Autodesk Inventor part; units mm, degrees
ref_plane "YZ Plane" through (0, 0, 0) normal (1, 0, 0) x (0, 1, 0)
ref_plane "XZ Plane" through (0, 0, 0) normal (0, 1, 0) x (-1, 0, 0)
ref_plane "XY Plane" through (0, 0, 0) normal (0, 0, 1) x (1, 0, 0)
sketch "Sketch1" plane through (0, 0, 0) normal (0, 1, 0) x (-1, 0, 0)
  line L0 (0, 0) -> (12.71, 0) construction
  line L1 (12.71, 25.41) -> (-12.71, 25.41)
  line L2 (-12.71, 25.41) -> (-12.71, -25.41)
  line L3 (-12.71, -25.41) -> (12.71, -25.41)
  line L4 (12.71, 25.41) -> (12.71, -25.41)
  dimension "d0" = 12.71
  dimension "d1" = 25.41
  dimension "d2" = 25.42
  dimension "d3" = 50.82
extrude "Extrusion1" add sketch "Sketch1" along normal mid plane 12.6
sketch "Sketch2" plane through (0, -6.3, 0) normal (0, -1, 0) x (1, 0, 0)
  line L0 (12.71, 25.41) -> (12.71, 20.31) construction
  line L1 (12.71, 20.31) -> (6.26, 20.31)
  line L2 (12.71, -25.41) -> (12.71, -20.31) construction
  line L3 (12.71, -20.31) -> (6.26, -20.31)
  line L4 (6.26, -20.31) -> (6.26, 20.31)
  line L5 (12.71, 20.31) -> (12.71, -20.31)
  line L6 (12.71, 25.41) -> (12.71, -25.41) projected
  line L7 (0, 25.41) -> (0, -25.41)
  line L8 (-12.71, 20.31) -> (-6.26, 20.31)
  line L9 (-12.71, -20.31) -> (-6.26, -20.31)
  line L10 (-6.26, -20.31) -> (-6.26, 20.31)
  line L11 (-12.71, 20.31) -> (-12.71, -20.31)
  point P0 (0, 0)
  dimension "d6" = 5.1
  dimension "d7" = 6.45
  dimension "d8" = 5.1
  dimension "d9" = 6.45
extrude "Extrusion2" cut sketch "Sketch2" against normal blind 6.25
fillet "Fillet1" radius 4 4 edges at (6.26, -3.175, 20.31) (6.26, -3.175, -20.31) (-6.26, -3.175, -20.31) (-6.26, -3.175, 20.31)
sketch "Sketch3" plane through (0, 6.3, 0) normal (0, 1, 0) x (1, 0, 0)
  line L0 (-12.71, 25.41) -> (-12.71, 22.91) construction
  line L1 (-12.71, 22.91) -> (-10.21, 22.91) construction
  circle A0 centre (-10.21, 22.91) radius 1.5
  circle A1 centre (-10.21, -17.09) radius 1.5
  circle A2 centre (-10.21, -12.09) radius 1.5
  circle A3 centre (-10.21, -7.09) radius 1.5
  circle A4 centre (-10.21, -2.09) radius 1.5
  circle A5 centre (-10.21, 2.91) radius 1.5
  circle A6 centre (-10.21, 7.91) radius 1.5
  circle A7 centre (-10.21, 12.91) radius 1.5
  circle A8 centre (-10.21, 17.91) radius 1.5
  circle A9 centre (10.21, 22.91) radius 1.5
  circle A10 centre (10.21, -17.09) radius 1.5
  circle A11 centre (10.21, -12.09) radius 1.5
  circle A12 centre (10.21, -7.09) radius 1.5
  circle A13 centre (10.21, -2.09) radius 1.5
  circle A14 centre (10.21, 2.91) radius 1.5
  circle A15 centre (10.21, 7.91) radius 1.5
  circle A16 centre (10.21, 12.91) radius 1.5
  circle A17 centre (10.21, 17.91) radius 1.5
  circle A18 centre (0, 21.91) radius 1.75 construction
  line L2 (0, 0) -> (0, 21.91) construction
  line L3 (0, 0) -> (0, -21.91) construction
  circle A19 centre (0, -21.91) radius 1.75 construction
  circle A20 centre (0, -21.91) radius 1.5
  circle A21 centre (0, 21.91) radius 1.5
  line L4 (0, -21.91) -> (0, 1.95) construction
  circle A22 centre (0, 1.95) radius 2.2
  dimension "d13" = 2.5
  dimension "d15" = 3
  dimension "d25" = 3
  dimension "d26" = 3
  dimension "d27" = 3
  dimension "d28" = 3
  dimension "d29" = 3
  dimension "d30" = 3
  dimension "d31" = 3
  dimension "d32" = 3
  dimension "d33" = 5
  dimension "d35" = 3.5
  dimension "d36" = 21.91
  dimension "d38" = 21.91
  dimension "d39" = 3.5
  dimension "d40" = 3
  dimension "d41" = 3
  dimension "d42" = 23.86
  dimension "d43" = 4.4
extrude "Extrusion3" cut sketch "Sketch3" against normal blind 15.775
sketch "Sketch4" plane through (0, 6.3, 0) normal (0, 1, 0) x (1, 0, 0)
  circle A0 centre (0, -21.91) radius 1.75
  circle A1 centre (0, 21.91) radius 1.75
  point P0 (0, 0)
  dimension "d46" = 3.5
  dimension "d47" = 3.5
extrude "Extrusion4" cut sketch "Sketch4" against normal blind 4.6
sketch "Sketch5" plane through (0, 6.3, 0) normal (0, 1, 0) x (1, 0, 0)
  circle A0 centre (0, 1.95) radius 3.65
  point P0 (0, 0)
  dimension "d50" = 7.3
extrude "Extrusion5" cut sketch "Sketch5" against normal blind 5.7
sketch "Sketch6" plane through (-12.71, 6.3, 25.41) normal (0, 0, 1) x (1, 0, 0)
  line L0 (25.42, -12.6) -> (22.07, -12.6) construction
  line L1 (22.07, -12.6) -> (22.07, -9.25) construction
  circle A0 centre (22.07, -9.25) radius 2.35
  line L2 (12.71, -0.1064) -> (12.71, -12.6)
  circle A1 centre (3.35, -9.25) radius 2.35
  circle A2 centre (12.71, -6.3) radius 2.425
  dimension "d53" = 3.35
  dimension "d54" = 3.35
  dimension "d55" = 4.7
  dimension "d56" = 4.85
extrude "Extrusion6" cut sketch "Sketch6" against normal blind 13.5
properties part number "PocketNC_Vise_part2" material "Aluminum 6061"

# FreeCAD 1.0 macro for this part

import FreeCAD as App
import Part
import Sketcher


def edges_at(feature, points):
    """Names of the edges that pass closest to the given points."""
    edges = feature.Shape.Edges
    near = lambda p: min(range(len(edges)), key=lambda i: edges[i].distToShape(Part.Vertex(*p))[0])
    return sorted({f"Edge{near(p) + 1}" for p in points})


def add_polygon(sketch, points):
    """Adds a closed chain of lines whose ends are joined by coincident constraints."""
    first, n = sketch.GeometryCount, len(points)
    for a, b in zip(points, points[1:] + points[:1]):
        sketch.addGeometry(Part.LineSegment(App.Vector(*a, 0), App.Vector(*b, 0)), False)
    for i in range(n):
        sketch.addConstraint(Sketcher.Constraint("Coincident", first + i, 2, first + (i + 1) % n, 1))

doc = App.newDocument("Part")
params = doc.addObject("Spreadsheet::Sheet", "Params")
for row, (alias, value) in enumerate([
    ("sketch1_width", "25.42 mm"),
    ("sketch1_height", "50.82 mm"),
    ("pad1_length", "12.6 mm"),
    ("sketch2_width", "6.45 mm"),
    ("sketch2_height", "40.62 mm"),
    ("pocket1_length", "6.25 mm"),
    ("fillet_radius", "4 mm"),
    ("sketch3_diameter", "3 mm"),
    ("sketch3_diameter2", "4.4 mm"),
    ("pocket2_length", "15.775 mm"),
    ("sketch4_diameter", "3.5 mm"),
    ("pocket3_length", "4.6 mm"),
    ("sketch5_diameter", "7.3 mm"),
    ("pocket4_length", "5.7 mm"),
    ("sketch6_diameter", "4.7 mm"),
    ("sketch6_diameter2", "4.85 mm"),
    ("pocket5_length", "13.5 mm"),
], start=1):
    params.set(f"A{row}", alias)
    params.set(f"B{row}", "=" + value)
    params.setAlias(f"B{row}", alias)

body = doc.addObject("PartDesign::Body", "Body")

sketch1 = body.newObject("Sketcher::SketchObject", "Sketch")
sketch1.AttachmentSupport = (doc.getObject("XZ_Plane"), [""])
sketch1.MapMode = "FlatFace"
add_polygon(sketch1, [(-12.71, -25.41), (-12.71, 25.41), (12.71, 25.41), (12.71, -25.41)])
sketch1.addConstraint(Sketcher.Constraint("Vertical", 0))
sketch1.addConstraint(Sketcher.Constraint("Horizontal", 1))
sketch1.addConstraint(Sketcher.Constraint("Vertical", 2))
sketch1.addConstraint(Sketcher.Constraint("Horizontal", 3))
sketch1.addConstraint(Sketcher.Constraint("Symmetric", 0, 2, 2, 2, -1, 1))
sketch1.addConstraint(Sketcher.Constraint("DistanceX", 1, 1, 1, 2, 25.42))
sketch1.addConstraint(Sketcher.Constraint("DistanceY", 0, 1, 0, 2, 50.82))
sketch1.setExpression("Constraints[9]", "Params.sketch1_width")
sketch1.setExpression("Constraints[10]", "Params.sketch1_height")
pad1 = body.newObject("PartDesign::Pad", "Pad")
pad1.Profile = sketch1
pad1.setExpression("Length", "Params.pad1_length")
pad1.Midplane = True

sketch2 = body.newObject("Sketcher::SketchObject", "Sketch001")
sketch2.AttachmentSupport = (doc.getObject("XZ_Plane"), [""])
sketch2.MapMode = "FlatFace"
sketch2.AttachmentOffset = App.Placement(App.Vector(0, 0, 6.3), App.Rotation())
add_polygon(sketch2, [(12.71, -20.31), (12.71, 20.31), (6.26, 20.31), (6.26, -20.31)])
add_polygon(sketch2, [(-6.26, 20.31), (-12.71, 20.31), (-12.71, -20.31), (-6.26, -20.31)])
sketch2.addConstraint(Sketcher.Constraint("Vertical", 0))
sketch2.addConstraint(Sketcher.Constraint("Horizontal", 1))
sketch2.addConstraint(Sketcher.Constraint("Vertical", 2))
sketch2.addConstraint(Sketcher.Constraint("Horizontal", 3))
sketch2.addConstraint(Sketcher.Constraint("Horizontal", 4))
sketch2.addConstraint(Sketcher.Constraint("Vertical", 5))
sketch2.addConstraint(Sketcher.Constraint("Horizontal", 6))
sketch2.addConstraint(Sketcher.Constraint("Vertical", 7))
sketch2.addConstraint(Sketcher.Constraint("Symmetric", 3, 2, 4, 2, -1, 1))
sketch2.addConstraint(Sketcher.Constraint("Symmetric", 1, 2, 6, 2, -1, 1))
sketch2.addConstraint(Sketcher.Constraint("Horizontal", 1, 2, 4, 2))
sketch2.addConstraint(Sketcher.Constraint("DistanceX", 1, 2, 1, 1, 6.45))
sketch2.addConstraint(Sketcher.Constraint("DistanceY", 0, 1, 0, 2, 40.62))
sketch2.addConstraint(Sketcher.Constraint("DistanceX", -1, 1, 0, 2, 12.71))
sketch2.setExpression("Constraints[19]", "Params.sketch2_width")
sketch2.setExpression("Constraints[20]", "Params.sketch2_height")
pocket1 = body.newObject("PartDesign::Pocket", "Pocket")
pocket1.Profile = sketch2
pocket1.setExpression("Length", "Params.pocket1_length")
doc.recompute()

fillet = body.newObject("PartDesign::Fillet", "Fillet")
fillet.Base = (pocket1, edges_at(pocket1, [
    (6.26, -3.175, 20.31),
    (6.26, -3.175, -20.31),
    (-6.26, -3.175, -20.31),
    (-6.26, -3.175, 20.31),
]))
fillet.setExpression("Radius", "Params.fillet_radius")

sketch3 = body.newObject("Sketcher::SketchObject", "Sketch002")
sketch3.AttachmentSupport = (doc.getObject("XZ_Plane"), [""])
sketch3.MapMode = "FlatFace"
sketch3.AttachmentOffset = App.Placement(App.Vector(0, 0, -6.3), App.Rotation())
sketch3.addGeometry(Part.Circle(App.Vector(-10.21, -22.91, 0), App.Vector(0, 0, 1), 1.5), False)
sketch3.addGeometry(Part.Circle(App.Vector(-10.21, 17.09, 0), App.Vector(0, 0, 1), 1.5), False)
sketch3.addGeometry(Part.Circle(App.Vector(-10.21, 12.09, 0), App.Vector(0, 0, 1), 1.5), False)
sketch3.addGeometry(Part.Circle(App.Vector(-10.21, 7.09, 0), App.Vector(0, 0, 1), 1.5), False)
sketch3.addGeometry(Part.Circle(App.Vector(-10.21, 2.09, 0), App.Vector(0, 0, 1), 1.5), False)
sketch3.addGeometry(Part.Circle(App.Vector(-10.21, -2.91, 0), App.Vector(0, 0, 1), 1.5), False)
sketch3.addGeometry(Part.Circle(App.Vector(-10.21, -7.91, 0), App.Vector(0, 0, 1), 1.5), False)
sketch3.addGeometry(Part.Circle(App.Vector(-10.21, -12.91, 0), App.Vector(0, 0, 1), 1.5), False)
sketch3.addGeometry(Part.Circle(App.Vector(-10.21, -17.91, 0), App.Vector(0, 0, 1), 1.5), False)
sketch3.addGeometry(Part.Circle(App.Vector(10.21, -22.91, 0), App.Vector(0, 0, 1), 1.5), False)
sketch3.addGeometry(Part.Circle(App.Vector(10.21, 17.09, 0), App.Vector(0, 0, 1), 1.5), False)
sketch3.addGeometry(Part.Circle(App.Vector(10.21, 12.09, 0), App.Vector(0, 0, 1), 1.5), False)
sketch3.addGeometry(Part.Circle(App.Vector(10.21, 7.09, 0), App.Vector(0, 0, 1), 1.5), False)
sketch3.addGeometry(Part.Circle(App.Vector(10.21, 2.09, 0), App.Vector(0, 0, 1), 1.5), False)
sketch3.addGeometry(Part.Circle(App.Vector(10.21, -2.91, 0), App.Vector(0, 0, 1), 1.5), False)
sketch3.addGeometry(Part.Circle(App.Vector(10.21, -7.91, 0), App.Vector(0, 0, 1), 1.5), False)
sketch3.addGeometry(Part.Circle(App.Vector(10.21, -12.91, 0), App.Vector(0, 0, 1), 1.5), False)
sketch3.addGeometry(Part.Circle(App.Vector(10.21, -17.91, 0), App.Vector(0, 0, 1), 1.5), False)
sketch3.addGeometry(Part.Circle(App.Vector(0, 21.91, 0), App.Vector(0, 0, 1), 1.5), False)
sketch3.addGeometry(Part.Circle(App.Vector(0, -21.91, 0), App.Vector(0, 0, 1), 1.5), False)
sketch3.addGeometry(Part.Circle(App.Vector(0, -1.95, 0), App.Vector(0, 0, 1), 2.2), False)
sketch3.addConstraint(Sketcher.Constraint("Equal", 0, 1))
sketch3.addConstraint(Sketcher.Constraint("Equal", 1, 2))
sketch3.addConstraint(Sketcher.Constraint("Equal", 2, 3))
sketch3.addConstraint(Sketcher.Constraint("Equal", 3, 4))
sketch3.addConstraint(Sketcher.Constraint("Equal", 4, 5))
sketch3.addConstraint(Sketcher.Constraint("Equal", 5, 6))
sketch3.addConstraint(Sketcher.Constraint("Equal", 6, 7))
sketch3.addConstraint(Sketcher.Constraint("Equal", 7, 8))
sketch3.addConstraint(Sketcher.Constraint("Equal", 8, 9))
sketch3.addConstraint(Sketcher.Constraint("Equal", 9, 10))
sketch3.addConstraint(Sketcher.Constraint("Equal", 10, 11))
sketch3.addConstraint(Sketcher.Constraint("Equal", 11, 12))
sketch3.addConstraint(Sketcher.Constraint("Equal", 12, 13))
sketch3.addConstraint(Sketcher.Constraint("Equal", 13, 14))
sketch3.addConstraint(Sketcher.Constraint("Equal", 14, 15))
sketch3.addConstraint(Sketcher.Constraint("Equal", 15, 16))
sketch3.addConstraint(Sketcher.Constraint("Equal", 16, 17))
sketch3.addConstraint(Sketcher.Constraint("Equal", 17, 18))
sketch3.addConstraint(Sketcher.Constraint("Equal", 18, 19))
sketch3.addConstraint(Sketcher.Constraint("Symmetric", 18, 3, 19, 3, -1, 1))
sketch3.addConstraint(Sketcher.Constraint("Symmetric", 0, 3, 9, 3, -2))
sketch3.addConstraint(Sketcher.Constraint("Symmetric", 1, 3, 10, 3, -2))
sketch3.addConstraint(Sketcher.Constraint("Symmetric", 2, 3, 11, 3, -2))
sketch3.addConstraint(Sketcher.Constraint("Symmetric", 3, 3, 12, 3, -2))
sketch3.addConstraint(Sketcher.Constraint("Symmetric", 4, 3, 13, 3, -2))
sketch3.addConstraint(Sketcher.Constraint("Symmetric", 5, 3, 14, 3, -2))
sketch3.addConstraint(Sketcher.Constraint("Symmetric", 6, 3, 15, 3, -2))
sketch3.addConstraint(Sketcher.Constraint("Symmetric", 7, 3, 16, 3, -2))
sketch3.addConstraint(Sketcher.Constraint("Symmetric", 8, 3, 17, 3, -2))
sketch3.addConstraint(Sketcher.Constraint("PointOnObject", 18, 3, -2))
sketch3.addConstraint(Sketcher.Constraint("PointOnObject", 20, 3, -2))
sketch3.addConstraint(Sketcher.Constraint("Vertical", 0, 3, 1, 3))
sketch3.addConstraint(Sketcher.Constraint("Vertical", 1, 3, 2, 3))
sketch3.addConstraint(Sketcher.Constraint("Vertical", 2, 3, 3, 3))
sketch3.addConstraint(Sketcher.Constraint("Vertical", 3, 3, 4, 3))
sketch3.addConstraint(Sketcher.Constraint("Vertical", 4, 3, 5, 3))
sketch3.addConstraint(Sketcher.Constraint("Vertical", 5, 3, 6, 3))
sketch3.addConstraint(Sketcher.Constraint("Vertical", 6, 3, 7, 3))
sketch3.addConstraint(Sketcher.Constraint("Vertical", 7, 3, 8, 3))
sketch3.addConstraint(Sketcher.Constraint("Diameter", 0, 3.0))
sketch3.addConstraint(Sketcher.Constraint("Diameter", 20, 4.4))
sketch3.addConstraint(Sketcher.Constraint("DistanceY", 2, 3, 1, 3, 5.0))
sketch3.addConstraint(Sketcher.Constraint("DistanceY", 3, 3, 2, 3, 5.0))
sketch3.addConstraint(Sketcher.Constraint("DistanceY", 4, 3, 3, 3, 5.0))
sketch3.addConstraint(Sketcher.Constraint("DistanceY", 5, 3, 4, 3, 5.0))
sketch3.addConstraint(Sketcher.Constraint("DistanceY", 6, 3, 5, 3, 5.0))
sketch3.addConstraint(Sketcher.Constraint("DistanceY", 7, 3, 6, 3, 5.0))
sketch3.addConstraint(Sketcher.Constraint("DistanceY", 0, 3, 8, 3, 5.0))
sketch3.addConstraint(Sketcher.Constraint("DistanceY", 8, 3, 7, 3, 5.0))
sketch3.addConstraint(Sketcher.Constraint("DistanceY", -1, 1, 18, 3, 21.91))
sketch3.addConstraint(Sketcher.Constraint("DistanceY", 0, 3, 19, 3, 1.0))
sketch3.addConstraint(Sketcher.Constraint("DistanceX", 0, 3, -1, 1, 10.21))
sketch3.addConstraint(Sketcher.Constraint("DistanceY", 20, 3, -1, 1, 1.95))
sketch3.setExpression("Constraints[39]", "Params.sketch3_diameter")
sketch3.setExpression("Constraints[40]", "Params.sketch3_diameter2")
pocket2 = body.newObject("PartDesign::Pocket", "Pocket001")
pocket2.Profile = sketch3
pocket2.setExpression("Length", "Params.pocket2_length")
pocket2.Reversed = True

sketch4 = body.newObject("Sketcher::SketchObject", "Sketch003")
sketch4.AttachmentSupport = (doc.getObject("XZ_Plane"), [""])
sketch4.MapMode = "FlatFace"
sketch4.AttachmentOffset = App.Placement(App.Vector(0, 0, -6.3), App.Rotation())
sketch4.addGeometry(Part.Circle(App.Vector(0, 21.91, 0), App.Vector(0, 0, 1), 1.75), False)
sketch4.addGeometry(Part.Circle(App.Vector(0, -21.91, 0), App.Vector(0, 0, 1), 1.75), False)
sketch4.addConstraint(Sketcher.Constraint("Equal", 0, 1))
sketch4.addConstraint(Sketcher.Constraint("Symmetric", 0, 3, 1, 3, -1, 1))
sketch4.addConstraint(Sketcher.Constraint("PointOnObject", 0, 3, -2))
sketch4.addConstraint(Sketcher.Constraint("Diameter", 0, 3.5))
sketch4.addConstraint(Sketcher.Constraint("DistanceY", -1, 1, 0, 3, 21.91))
sketch4.setExpression("Constraints[3]", "Params.sketch4_diameter")
pocket3 = body.newObject("PartDesign::Pocket", "Pocket002")
pocket3.Profile = sketch4
pocket3.setExpression("Length", "Params.pocket3_length")
pocket3.Reversed = True

sketch5 = body.newObject("Sketcher::SketchObject", "Sketch004")
sketch5.AttachmentSupport = (doc.getObject("XZ_Plane"), [""])
sketch5.MapMode = "FlatFace"
sketch5.AttachmentOffset = App.Placement(App.Vector(0, 0, -6.3), App.Rotation())
sketch5.addGeometry(Part.Circle(App.Vector(0, -1.95, 0), App.Vector(0, 0, 1), 3.65), False)
sketch5.addConstraint(Sketcher.Constraint("PointOnObject", 0, 3, -2))
sketch5.addConstraint(Sketcher.Constraint("Diameter", 0, 7.3))
sketch5.addConstraint(Sketcher.Constraint("DistanceY", 0, 3, -1, 1, 1.95))
sketch5.setExpression("Constraints[1]", "Params.sketch5_diameter")
pocket4 = body.newObject("PartDesign::Pocket", "Pocket003")
pocket4.Profile = sketch5
pocket4.setExpression("Length", "Params.pocket4_length")
pocket4.Reversed = True

sketch6 = body.newObject("Sketcher::SketchObject", "Sketch005")
sketch6.AttachmentSupport = (doc.getObject("XY_Plane"), [""])
sketch6.MapMode = "FlatFace"
sketch6.AttachmentOffset = App.Placement(App.Vector(0, 0, 25.41), App.Rotation())
sketch6.addGeometry(Part.Circle(App.Vector(9.36, -2.95, 0), App.Vector(0, 0, 1), 2.35), False)
sketch6.addGeometry(Part.Circle(App.Vector(0, 0, 0), App.Vector(0, 0, 1), 2.425), False)
sketch6.addGeometry(Part.Circle(App.Vector(-9.36, -2.95, 0), App.Vector(0, 0, 1), 2.35), False)
sketch6.addConstraint(Sketcher.Constraint("Coincident", 1, 3, -1, 1))
sketch6.addConstraint(Sketcher.Constraint("Equal", 0, 2))
sketch6.addConstraint(Sketcher.Constraint("Symmetric", 0, 3, 2, 3, -2))
sketch6.addConstraint(Sketcher.Constraint("Diameter", 0, 4.7))
sketch6.addConstraint(Sketcher.Constraint("Diameter", 1, 4.85))
sketch6.addConstraint(Sketcher.Constraint("DistanceX", -1, 1, 0, 3, 9.36))
sketch6.addConstraint(Sketcher.Constraint("DistanceY", 0, 3, -1, 1, 2.95))
sketch6.setExpression("Constraints[3]", "Params.sketch6_diameter")
sketch6.setExpression("Constraints[4]", "Params.sketch6_diameter2")
pocket5 = body.newObject("PartDesign::Pocket", "Pocket004")
pocket5.Profile = sketch6
pocket5.setExpression("Length", "Params.pocket5_length")

doc.recompute()
